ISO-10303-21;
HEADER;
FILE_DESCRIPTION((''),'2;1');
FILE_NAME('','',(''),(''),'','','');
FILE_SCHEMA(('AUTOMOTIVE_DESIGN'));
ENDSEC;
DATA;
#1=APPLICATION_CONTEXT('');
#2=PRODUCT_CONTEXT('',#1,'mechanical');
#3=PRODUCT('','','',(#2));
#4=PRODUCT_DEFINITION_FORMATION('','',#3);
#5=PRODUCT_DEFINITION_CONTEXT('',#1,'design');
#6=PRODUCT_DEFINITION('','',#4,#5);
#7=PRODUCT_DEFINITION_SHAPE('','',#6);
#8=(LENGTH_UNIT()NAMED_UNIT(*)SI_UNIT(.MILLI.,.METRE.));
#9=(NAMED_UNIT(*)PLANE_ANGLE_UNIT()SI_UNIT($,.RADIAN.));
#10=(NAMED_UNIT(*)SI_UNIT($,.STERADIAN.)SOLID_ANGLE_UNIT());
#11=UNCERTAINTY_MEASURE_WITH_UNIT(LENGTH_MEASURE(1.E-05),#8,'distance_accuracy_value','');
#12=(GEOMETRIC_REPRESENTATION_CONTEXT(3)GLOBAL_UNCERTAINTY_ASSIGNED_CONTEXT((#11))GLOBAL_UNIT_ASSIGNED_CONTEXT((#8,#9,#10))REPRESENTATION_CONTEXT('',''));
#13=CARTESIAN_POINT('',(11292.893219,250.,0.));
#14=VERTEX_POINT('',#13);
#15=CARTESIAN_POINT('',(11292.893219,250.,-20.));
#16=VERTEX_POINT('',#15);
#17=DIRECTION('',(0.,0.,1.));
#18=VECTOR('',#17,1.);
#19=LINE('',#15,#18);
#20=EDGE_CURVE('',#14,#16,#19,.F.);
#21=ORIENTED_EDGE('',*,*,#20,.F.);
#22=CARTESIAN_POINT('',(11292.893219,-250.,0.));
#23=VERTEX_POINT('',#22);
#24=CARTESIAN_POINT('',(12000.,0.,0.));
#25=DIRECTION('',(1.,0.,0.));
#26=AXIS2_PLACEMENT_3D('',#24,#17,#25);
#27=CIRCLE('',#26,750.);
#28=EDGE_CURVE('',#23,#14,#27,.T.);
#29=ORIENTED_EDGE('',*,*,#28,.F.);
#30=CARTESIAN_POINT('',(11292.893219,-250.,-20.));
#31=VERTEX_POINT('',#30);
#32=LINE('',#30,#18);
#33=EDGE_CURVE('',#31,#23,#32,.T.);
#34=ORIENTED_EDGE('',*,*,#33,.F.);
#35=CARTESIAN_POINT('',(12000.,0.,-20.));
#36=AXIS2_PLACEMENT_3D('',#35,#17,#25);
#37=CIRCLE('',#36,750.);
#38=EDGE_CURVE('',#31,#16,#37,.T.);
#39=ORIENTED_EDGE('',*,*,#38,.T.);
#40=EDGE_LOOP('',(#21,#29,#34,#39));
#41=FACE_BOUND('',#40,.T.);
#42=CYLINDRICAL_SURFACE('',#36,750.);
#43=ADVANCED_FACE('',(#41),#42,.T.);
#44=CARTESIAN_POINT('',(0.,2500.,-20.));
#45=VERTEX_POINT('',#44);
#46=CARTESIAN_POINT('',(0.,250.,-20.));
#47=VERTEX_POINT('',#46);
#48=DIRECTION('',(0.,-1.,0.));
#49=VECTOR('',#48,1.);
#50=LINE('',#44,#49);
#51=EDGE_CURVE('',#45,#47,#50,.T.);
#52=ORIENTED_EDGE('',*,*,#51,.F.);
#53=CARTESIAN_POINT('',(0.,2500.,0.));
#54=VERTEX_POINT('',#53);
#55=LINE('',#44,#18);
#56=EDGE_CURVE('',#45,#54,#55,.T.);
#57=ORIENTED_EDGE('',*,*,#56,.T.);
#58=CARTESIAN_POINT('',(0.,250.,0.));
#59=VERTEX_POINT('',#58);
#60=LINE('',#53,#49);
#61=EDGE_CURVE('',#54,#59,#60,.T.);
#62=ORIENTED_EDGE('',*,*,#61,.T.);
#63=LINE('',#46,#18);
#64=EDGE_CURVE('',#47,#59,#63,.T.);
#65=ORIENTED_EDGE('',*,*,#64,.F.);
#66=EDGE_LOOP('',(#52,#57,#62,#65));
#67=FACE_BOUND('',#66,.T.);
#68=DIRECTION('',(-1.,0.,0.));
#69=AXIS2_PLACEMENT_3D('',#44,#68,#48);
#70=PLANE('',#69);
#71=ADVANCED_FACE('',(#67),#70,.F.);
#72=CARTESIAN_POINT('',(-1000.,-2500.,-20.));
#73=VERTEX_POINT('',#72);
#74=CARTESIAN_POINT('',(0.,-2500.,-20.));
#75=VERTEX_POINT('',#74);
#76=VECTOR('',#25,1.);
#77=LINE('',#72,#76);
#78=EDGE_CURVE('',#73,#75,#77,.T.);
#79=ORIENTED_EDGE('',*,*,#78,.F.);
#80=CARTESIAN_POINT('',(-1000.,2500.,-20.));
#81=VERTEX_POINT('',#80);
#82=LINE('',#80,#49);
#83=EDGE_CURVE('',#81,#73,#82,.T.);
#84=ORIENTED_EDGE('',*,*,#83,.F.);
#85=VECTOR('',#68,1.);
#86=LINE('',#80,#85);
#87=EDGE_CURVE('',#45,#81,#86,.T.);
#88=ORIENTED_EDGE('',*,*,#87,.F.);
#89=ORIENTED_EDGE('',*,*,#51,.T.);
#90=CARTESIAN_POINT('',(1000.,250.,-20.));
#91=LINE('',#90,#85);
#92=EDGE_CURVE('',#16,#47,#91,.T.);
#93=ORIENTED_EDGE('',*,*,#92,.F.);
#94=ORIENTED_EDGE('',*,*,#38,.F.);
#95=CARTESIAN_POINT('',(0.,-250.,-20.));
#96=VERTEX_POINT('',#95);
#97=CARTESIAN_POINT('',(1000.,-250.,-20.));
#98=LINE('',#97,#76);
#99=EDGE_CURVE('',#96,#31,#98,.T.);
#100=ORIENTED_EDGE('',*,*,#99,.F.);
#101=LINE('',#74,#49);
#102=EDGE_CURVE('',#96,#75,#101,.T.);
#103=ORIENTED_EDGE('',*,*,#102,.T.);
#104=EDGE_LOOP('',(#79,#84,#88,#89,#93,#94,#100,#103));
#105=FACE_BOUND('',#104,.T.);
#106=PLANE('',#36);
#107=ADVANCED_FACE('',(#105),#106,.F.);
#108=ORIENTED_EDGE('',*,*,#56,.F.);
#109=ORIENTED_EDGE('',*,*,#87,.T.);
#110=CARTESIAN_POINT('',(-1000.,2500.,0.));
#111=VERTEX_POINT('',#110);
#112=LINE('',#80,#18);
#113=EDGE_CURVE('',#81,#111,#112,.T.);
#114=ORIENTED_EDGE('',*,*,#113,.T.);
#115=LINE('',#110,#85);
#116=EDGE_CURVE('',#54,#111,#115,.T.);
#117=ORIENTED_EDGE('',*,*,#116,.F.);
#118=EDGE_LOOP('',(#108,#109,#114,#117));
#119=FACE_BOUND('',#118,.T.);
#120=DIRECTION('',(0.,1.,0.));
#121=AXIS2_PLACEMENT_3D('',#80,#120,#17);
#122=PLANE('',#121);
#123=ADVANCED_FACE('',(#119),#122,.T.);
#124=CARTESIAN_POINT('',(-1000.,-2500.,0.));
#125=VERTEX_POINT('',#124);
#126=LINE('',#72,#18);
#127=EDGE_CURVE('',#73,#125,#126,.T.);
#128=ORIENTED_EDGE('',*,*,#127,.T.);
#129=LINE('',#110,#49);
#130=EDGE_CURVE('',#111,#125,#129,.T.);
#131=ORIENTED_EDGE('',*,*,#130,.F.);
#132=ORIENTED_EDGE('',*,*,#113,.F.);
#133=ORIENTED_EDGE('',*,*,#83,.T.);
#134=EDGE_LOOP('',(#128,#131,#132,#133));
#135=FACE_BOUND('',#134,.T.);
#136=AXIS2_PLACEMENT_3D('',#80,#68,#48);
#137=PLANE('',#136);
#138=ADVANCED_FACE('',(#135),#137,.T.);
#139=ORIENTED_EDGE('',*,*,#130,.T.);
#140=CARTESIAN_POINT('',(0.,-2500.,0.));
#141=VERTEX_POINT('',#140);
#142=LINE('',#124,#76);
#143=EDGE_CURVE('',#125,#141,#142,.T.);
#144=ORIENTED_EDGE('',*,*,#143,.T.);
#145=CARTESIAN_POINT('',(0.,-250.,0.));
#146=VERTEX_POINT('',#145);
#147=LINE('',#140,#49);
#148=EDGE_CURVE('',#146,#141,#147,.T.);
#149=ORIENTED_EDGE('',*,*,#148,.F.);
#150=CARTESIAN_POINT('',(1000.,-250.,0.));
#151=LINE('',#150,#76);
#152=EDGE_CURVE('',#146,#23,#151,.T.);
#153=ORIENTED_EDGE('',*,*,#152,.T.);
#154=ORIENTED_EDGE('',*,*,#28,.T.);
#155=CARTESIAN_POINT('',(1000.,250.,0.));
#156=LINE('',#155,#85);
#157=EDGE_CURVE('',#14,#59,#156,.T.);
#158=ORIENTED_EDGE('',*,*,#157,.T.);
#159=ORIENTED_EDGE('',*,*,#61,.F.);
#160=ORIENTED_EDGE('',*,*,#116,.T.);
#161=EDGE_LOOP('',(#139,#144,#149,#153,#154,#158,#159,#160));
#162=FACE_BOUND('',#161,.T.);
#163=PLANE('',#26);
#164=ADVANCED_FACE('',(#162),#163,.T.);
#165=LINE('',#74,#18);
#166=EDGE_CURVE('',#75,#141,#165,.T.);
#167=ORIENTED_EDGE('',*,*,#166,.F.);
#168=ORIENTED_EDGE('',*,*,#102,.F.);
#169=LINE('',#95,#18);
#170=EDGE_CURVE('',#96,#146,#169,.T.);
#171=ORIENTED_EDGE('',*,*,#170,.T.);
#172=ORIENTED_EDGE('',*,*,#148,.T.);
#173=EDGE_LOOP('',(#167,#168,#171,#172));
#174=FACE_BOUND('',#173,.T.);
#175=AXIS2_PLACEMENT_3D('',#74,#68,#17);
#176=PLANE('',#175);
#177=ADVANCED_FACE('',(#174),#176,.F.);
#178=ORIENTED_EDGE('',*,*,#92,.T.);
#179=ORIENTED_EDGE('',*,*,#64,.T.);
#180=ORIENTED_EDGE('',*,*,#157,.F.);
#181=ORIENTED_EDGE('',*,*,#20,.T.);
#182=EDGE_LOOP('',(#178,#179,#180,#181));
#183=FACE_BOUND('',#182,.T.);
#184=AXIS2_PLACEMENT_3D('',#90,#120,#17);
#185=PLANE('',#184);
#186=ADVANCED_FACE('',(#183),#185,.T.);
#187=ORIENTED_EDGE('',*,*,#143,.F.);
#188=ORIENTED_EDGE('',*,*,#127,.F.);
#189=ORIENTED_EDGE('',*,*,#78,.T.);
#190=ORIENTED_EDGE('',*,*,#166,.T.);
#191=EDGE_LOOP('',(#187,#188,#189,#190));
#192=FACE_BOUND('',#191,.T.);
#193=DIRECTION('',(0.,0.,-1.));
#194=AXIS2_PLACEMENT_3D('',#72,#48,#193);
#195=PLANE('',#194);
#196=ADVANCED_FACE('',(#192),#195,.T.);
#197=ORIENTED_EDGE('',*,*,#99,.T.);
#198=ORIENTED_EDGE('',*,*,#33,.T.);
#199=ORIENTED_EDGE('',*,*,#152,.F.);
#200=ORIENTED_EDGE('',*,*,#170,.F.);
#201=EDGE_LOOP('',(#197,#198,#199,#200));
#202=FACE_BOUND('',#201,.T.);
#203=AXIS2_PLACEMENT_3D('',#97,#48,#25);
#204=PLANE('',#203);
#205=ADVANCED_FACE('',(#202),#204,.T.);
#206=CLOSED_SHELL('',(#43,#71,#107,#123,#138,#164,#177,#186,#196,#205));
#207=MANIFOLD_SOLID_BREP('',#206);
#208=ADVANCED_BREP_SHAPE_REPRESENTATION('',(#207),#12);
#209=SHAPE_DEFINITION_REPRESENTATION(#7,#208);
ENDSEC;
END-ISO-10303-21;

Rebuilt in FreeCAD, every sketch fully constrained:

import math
import FreeCAD as App
import Part
import Sketcher

V = App.Vector

doc = App.newDocument("Part")
body = doc.addObject("PartDesign::Body", "Body")

# Sketch on XY plane
sketch1 = body.newObject("Sketcher::SketchObject", "Sketch")
sketch1.AttachmentSupport = (doc.getObject("XY_Plane"), [""])
sketch1.MapMode = "FlatFace"
sketch1.addGeometry(Part.LineSegment(V(5000, 250, 0), V(1000, 250, 0)), False)
sketch1.addGeometry(Part.LineSegment(V(1000, 250, 0), V(1000, 2500, 0)), False)
sketch1.addGeometry(Part.LineSegment(V(1000, 2500, 0), V(-1000, 2500, 0)), False)
sketch1.addGeometry(Part.LineSegment(V(-1000, 2500, 0), V(-1000, -2500, 0)), False)
sketch1.addGeometry(Part.LineSegment(V(-1000, -2500, 0), V(1000, -2500, 0)), False)
sketch1.addGeometry(Part.LineSegment(V(1000, -2500, 0), V(1000, -250, 0)), False)
sketch1.addGeometry(Part.LineSegment(V(1000, -250, 0), V(5000, -250, 0)), False)
sketch1.addGeometry(Part.LineSegment(V(5000, -250, 0), V(5000, -125, 0)), False)
sketch1.addGeometry(Part.LineSegment(V(5000, -125, 0), V(9000, -125, 0)), False)
sketch1.addGeometry(Part.LineSegment(V(9000, -125, 0), V(9000, -100, 0)), False)
sketch1.addGeometry(Part.LineSegment(V(9000, -100, 0), V(11257, -100, 0)), False)
sketch1.addGeometry(Part.ArcOfCircle(Part.Circle(V(12000, 0, 0), V(0, 0, 1), 750), math.radians(-172), math.radians(172)), False)
sketch1.addGeometry(Part.LineSegment(V(11257, 100, 0), V(9000, 100, 0)), False)
sketch1.addGeometry(Part.LineSegment(V(9000, 100, 0), V(9000, 125, 0)), False)
sketch1.addGeometry(Part.LineSegment(V(9000, 125, 0), V(5000, 125, 0)), False)
sketch1.addGeometry(Part.LineSegment(V(5000, 125, 0), V(5000, 250, 0)), False)
sketch1.addConstraint(Sketcher.Constraint("Coincident", 0, 2, 1, 1))
sketch1.addConstraint(Sketcher.Constraint("Coincident", 1, 2, 2, 1))
sketch1.addConstraint(Sketcher.Constraint("Coincident", 2, 2, 3, 1))
sketch1.addConstraint(Sketcher.Constraint("Coincident", 3, 2, 4, 1))
sketch1.addConstraint(Sketcher.Constraint("Coincident", 4, 2, 5, 1))
sketch1.addConstraint(Sketcher.Constraint("Coincident", 5, 2, 6, 1))
sketch1.addConstraint(Sketcher.Constraint("Coincident", 6, 2, 7, 1))
sketch1.addConstraint(Sketcher.Constraint("Coincident", 7, 2, 8, 1))
sketch1.addConstraint(Sketcher.Constraint("Coincident", 8, 2, 9, 1))
sketch1.addConstraint(Sketcher.Constraint("Coincident", 9, 2, 10, 1))
sketch1.addConstraint(Sketcher.Constraint("Coincident", 10, 2, 11, 1))
sketch1.addConstraint(Sketcher.Constraint("Coincident", 11, 2, 12, 1))
sketch1.addConstraint(Sketcher.Constraint("Coincident", 12, 2, 13, 1))
sketch1.addConstraint(Sketcher.Constraint("Coincident", 13, 2, 14, 1))
sketch1.addConstraint(Sketcher.Constraint("Coincident", 14, 2, 15, 1))
sketch1.addConstraint(Sketcher.Constraint("Coincident", 15, 2, 0, 1))
sketch1.addConstraint(Sketcher.Constraint("Horizontal", 0))
sketch1.addConstraint(Sketcher.Constraint("Vertical", 1))
sketch1.addConstraint(Sketcher.Constraint("Horizontal", 2))
sketch1.addConstraint(Sketcher.Constraint("Vertical", 3))
sketch1.addConstraint(Sketcher.Constraint("Horizontal", 4))
sketch1.addConstraint(Sketcher.Constraint("Vertical", 5))
sketch1.addConstraint(Sketcher.Constraint("Horizontal", 6))
sketch1.addConstraint(Sketcher.Constraint("Vertical", 7))
sketch1.addConstraint(Sketcher.Constraint("Horizontal", 8))
sketch1.addConstraint(Sketcher.Constraint("Vertical", 9))
sketch1.addConstraint(Sketcher.Constraint("Horizontal", 10))
sketch1.addConstraint(Sketcher.Constraint("Horizontal", 12))
sketch1.addConstraint(Sketcher.Constraint("Vertical", 13))
sketch1.addConstraint(Sketcher.Constraint("Horizontal", 14))
sketch1.addConstraint(Sketcher.Constraint("Vertical", 15))
sketch1.addConstraint(Sketcher.Constraint("Symmetric", 1, 2, 3, 2, -1, 1))
sketch1.addConstraint(Sketcher.Constraint("Symmetric", 0, 2, 5, 2, -1))
sketch1.addConstraint(Sketcher.Constraint("Symmetric", 9, 2, 12, 2, -1))
sketch1.addConstraint(Sketcher.Constraint("Symmetric", 7, 2, 14, 2, -1))
sketch1.addConstraint(Sketcher.Constraint("PointOnObject", 11, 3, -1))
sketch1.addConstraint(Sketcher.Constraint("Equal", 6, 8))
sketch1.addConstraint(Sketcher.Constraint("Radius", 11, 750.0))
sketch1.addConstraint(Sketcher.Constraint("DistanceX", 0, 2, 0, 1, 4000.0))
sketch1.addConstraint(Sketcher.Constraint("DistanceX", 2, 2, 2, 1, 2000.0))
sketch1.addConstraint(Sketcher.Constraint("DistanceY", 1, 1, 1, 2, 2250.0))
sketch1.addConstraint(Sketcher.Constraint("DistanceY", 3, 2, 3, 1, 5000.0))
sketch1.addConstraint(Sketcher.Constraint("DistanceY", 7, 1, 7, 2, 125.0))
sketch1.addConstraint(Sketcher.Constraint("DistanceY", 9, 1, 9, 2, 25.0))
sketch1.addConstraint(Sketcher.Constraint("DistanceX", -1, 1, 11, 3, 12000.0))
pad1 = body.newObject("PartDesign::Pad", "Pad")
pad1.Profile = sketch1
pad1.Length = 20
pad1.Reversed = True

# Sketch on XY plane
sketch2 = body.newObject("Sketcher::SketchObject", "Sketch001")
sketch2.AttachmentSupport = (doc.getObject("XY_Plane"), [""])
sketch2.MapMode = "FlatFace"
sketch2.addGeometry(Part.LineSegment(V(0, 2500, 0), V(0, 250, 0)), False)
sketch2.addGeometry(Part.LineSegment(V(0, 250, 0), V(1000, 250, 0)), False)
sketch2.addGeometry(Part.LineSegment(V(1000, 250, 0), V(1000, 2500, 0)), False)
sketch2.addGeometry(Part.LineSegment(V(1000, 2500, 0), V(0, 2500, 0)), False)
sketch2.addGeometry(Part.LineSegment(V(0, -250, 0), V(0, -2500, 0)), False)
sketch2.addGeometry(Part.LineSegment(V(0, -2500, 0), V(1000, -2500, 0)), False)
sketch2.addGeometry(Part.LineSegment(V(1000, -2500, 0), V(1000, -250, 0)), False)
sketch2.addGeometry(Part.LineSegment(V(1000, -250, 0), V(0, -250, 0)), False)
sketch2.addConstraint(Sketcher.Constraint("Coincident", 0, 2, 1, 1))
sketch2.addConstraint(Sketcher.Constraint("Coincident", 1, 2, 2, 1))
sketch2.addConstraint(Sketcher.Constraint("Coincident", 2, 2, 3, 1))
sketch2.addConstraint(Sketcher.Constraint("Coincident", 3, 2, 0, 1))
sketch2.addConstraint(Sketcher.Constraint("Coincident", 4, 2, 5, 1))
sketch2.addConstraint(Sketcher.Constraint("Coincident", 5, 2, 6, 1))
sketch2.addConstraint(Sketcher.Constraint("Coincident", 6, 2, 7, 1))
sketch2.addConstraint(Sketcher.Constraint("Coincident", 7, 2, 4, 1))
sketch2.addConstraint(Sketcher.Constraint("Vertical", 0))
sketch2.addConstraint(Sketcher.Constraint("Horizontal", 1))
sketch2.addConstraint(Sketcher.Constraint("Vertical", 2))
sketch2.addConstraint(Sketcher.Constraint("Horizontal", 3))
sketch2.addConstraint(Sketcher.Constraint("Vertical", 4))
sketch2.addConstraint(Sketcher.Constraint("Horizontal", 5))
sketch2.addConstraint(Sketcher.Constraint("Vertical", 6))
sketch2.addConstraint(Sketcher.Constraint("Horizontal", 7))
sketch2.addConstraint(Sketcher.Constraint("Symmetric", 3, 2, 4, 2, -1, 1))
sketch2.addConstraint(Sketcher.Constraint("Symmetric", 1, 2, 6, 2, -1))
sketch2.addConstraint(Sketcher.Constraint("PointOnObject", 0, 2, -2))
sketch2.addConstraint(Sketcher.Constraint("DistanceX", 1, 1, 1, 2, 1000.0))
sketch2.addConstraint(Sketcher.Constraint("DistanceY", 0, 2, 0, 1, 2250.0))
sketch2.addConstraint(Sketcher.Constraint("DistanceY", -1, 1, 0, 2, 250.0))
pocket1 = body.newObject("PartDesign::Pocket", "Pocket")
pocket1.Profile = sketch2
pocket1.Type = "ThroughAll"

# Sketch on XY plane
sketch3 = body.newObject("Sketcher::SketchObject", "Sketch002")
sketch3.AttachmentSupport = (doc.getObject("XY_Plane"), [""])
sketch3.MapMode = "FlatFace"
sketch3.addGeometry(Part.LineSegment(V(1500, -250, 0), V(5000, -250, 0)), False)
sketch3.addGeometry(Part.LineSegment(V(5000, -250, 0), V(5000, -150, 0)), False)
sketch3.addGeometry(Part.LineSegment(V(5000, -150, 0), V(3250, -150, 0)), False)
sketch3.addGeometry(Part.LineSegment(V(3250, -150, 0), V(3250, -200, 0)), False)
sketch3.addGeometry(Part.LineSegment(V(3250, -200, 0), V(1500, -200, 0)), False)
sketch3.addGeometry(Part.LineSegment(V(1500, -200, 0), V(1500, -250, 0)), False)
sketch3.addConstraint(Sketcher.Constraint("Coincident", 0, 2, 1, 1))
sketch3.addConstraint(Sketcher.Constraint("Coincident", 1, 2, 2, 1))
sketch3.addConstraint(Sketcher.Constraint("Coincident", 2, 2, 3, 1))
sketch3.addConstraint(Sketcher.Constraint("Coincident", 3, 2, 4, 1))
sketch3.addConstraint(Sketcher.Constraint("Coincident", 4, 2, 5, 1))
sketch3.addConstraint(Sketcher.Constraint("Coincident", 5, 2, 0, 1))
sketch3.addConstraint(Sketcher.Constraint("Horizontal", 0))
sketch3.addConstraint(Sketcher.Constraint("Vertical", 1))
sketch3.addConstraint(Sketcher.Constraint("Horizontal", 2))
sketch3.addConstraint(Sketcher.Constraint("Vertical", 3))
sketch3.addConstraint(Sketcher.Constraint("Horizontal", 4))
sketch3.addConstraint(Sketcher.Constraint("Vertical", 5))
sketch3.addConstraint(Sketcher.Constraint("Equal", 2, 4))
sketch3.addConstraint(Sketcher.Constraint("Equal", 3, 5))
sketch3.addConstraint(Sketcher.Constraint("DistanceX", 0, 1, 0, 2, 3500.0))
sketch3.addConstraint(Sketcher.Constraint("DistanceY", 1, 1, 1, 2, 100.0))
sketch3.addConstraint(Sketcher.Constraint("DistanceX", -1, 1, 0, 2, 5000.0))
sketch3.addConstraint(Sketcher.Constraint("DistanceY", 0, 2, -1, 1, 250.0))
pocket2 = body.newObject("PartDesign::Pocket", "Pocket001")
pocket2.Profile = sketch3
pocket2.Type = "ThroughAll"
doc.recompute()

mirrored = body.newObject("PartDesign::Mirrored", "Mirrored")
mirrored.Originals = [pocket2]
mirrored.MirrorPlane = (doc.getObject("XZ_Plane"), [""])
body.Tip = mirrored

# Sketch on XY plane
sketch4 = body.newObject("Sketcher::SketchObject", "Sketch003")
sketch4.AttachmentSupport = (doc.getObject("XY_Plane"), [""])
sketch4.MapMode = "FlatFace"
sketch4.addGeometry(Part.LineSegment(V(0, 250, 0), V(0, -250, 0)), False)
sketch4.addGeometry(Part.LineSegment(V(0, -250, 0), V(11500, -250, 0)), False)
sketch4.addGeometry(Part.LineSegment(V(11500, -250, 0), V(11500, 250, 0)), False)
sketch4.addGeometry(Part.LineSegment(V(11500, 250, 0), V(0, 250, 0)), False)
sketch4.addConstraint(Sketcher.Constraint("Coincident", 0, 2, 1, 1))
sketch4.addConstraint(Sketcher.Constraint("Coincident", 1, 2, 2, 1))
sketch4.addConstraint(Sketcher.Constraint("Coincident", 2, 2, 3, 1))
sketch4.addConstraint(Sketcher.Constraint("Coincident", 3, 2, 0, 1))
sketch4.addConstraint(Sketcher.Constraint("Vertical", 0))
sketch4.addConstraint(Sketcher.Constraint("Horizontal", 1))
sketch4.addConstraint(Sketcher.Constraint("Vertical", 2))
sketch4.addConstraint(Sketcher.Constraint("Horizontal", 3))
sketch4.addConstraint(Sketcher.Constraint("Symmetric", 0, 2, 3, 2, -1, 1))
sketch4.addConstraint(Sketcher.Constraint("DistanceX", 1, 1, 1, 2, 11500.0))
sketch4.addConstraint(Sketcher.Constraint("DistanceY", 0, 2, 0, 1, 500.0))
pad2 = body.newObject("PartDesign::Pad", "Pad001")
pad2.Profile = sketch4
pad2.Length = 20
pad2.Reversed = True

doc.recompute()
